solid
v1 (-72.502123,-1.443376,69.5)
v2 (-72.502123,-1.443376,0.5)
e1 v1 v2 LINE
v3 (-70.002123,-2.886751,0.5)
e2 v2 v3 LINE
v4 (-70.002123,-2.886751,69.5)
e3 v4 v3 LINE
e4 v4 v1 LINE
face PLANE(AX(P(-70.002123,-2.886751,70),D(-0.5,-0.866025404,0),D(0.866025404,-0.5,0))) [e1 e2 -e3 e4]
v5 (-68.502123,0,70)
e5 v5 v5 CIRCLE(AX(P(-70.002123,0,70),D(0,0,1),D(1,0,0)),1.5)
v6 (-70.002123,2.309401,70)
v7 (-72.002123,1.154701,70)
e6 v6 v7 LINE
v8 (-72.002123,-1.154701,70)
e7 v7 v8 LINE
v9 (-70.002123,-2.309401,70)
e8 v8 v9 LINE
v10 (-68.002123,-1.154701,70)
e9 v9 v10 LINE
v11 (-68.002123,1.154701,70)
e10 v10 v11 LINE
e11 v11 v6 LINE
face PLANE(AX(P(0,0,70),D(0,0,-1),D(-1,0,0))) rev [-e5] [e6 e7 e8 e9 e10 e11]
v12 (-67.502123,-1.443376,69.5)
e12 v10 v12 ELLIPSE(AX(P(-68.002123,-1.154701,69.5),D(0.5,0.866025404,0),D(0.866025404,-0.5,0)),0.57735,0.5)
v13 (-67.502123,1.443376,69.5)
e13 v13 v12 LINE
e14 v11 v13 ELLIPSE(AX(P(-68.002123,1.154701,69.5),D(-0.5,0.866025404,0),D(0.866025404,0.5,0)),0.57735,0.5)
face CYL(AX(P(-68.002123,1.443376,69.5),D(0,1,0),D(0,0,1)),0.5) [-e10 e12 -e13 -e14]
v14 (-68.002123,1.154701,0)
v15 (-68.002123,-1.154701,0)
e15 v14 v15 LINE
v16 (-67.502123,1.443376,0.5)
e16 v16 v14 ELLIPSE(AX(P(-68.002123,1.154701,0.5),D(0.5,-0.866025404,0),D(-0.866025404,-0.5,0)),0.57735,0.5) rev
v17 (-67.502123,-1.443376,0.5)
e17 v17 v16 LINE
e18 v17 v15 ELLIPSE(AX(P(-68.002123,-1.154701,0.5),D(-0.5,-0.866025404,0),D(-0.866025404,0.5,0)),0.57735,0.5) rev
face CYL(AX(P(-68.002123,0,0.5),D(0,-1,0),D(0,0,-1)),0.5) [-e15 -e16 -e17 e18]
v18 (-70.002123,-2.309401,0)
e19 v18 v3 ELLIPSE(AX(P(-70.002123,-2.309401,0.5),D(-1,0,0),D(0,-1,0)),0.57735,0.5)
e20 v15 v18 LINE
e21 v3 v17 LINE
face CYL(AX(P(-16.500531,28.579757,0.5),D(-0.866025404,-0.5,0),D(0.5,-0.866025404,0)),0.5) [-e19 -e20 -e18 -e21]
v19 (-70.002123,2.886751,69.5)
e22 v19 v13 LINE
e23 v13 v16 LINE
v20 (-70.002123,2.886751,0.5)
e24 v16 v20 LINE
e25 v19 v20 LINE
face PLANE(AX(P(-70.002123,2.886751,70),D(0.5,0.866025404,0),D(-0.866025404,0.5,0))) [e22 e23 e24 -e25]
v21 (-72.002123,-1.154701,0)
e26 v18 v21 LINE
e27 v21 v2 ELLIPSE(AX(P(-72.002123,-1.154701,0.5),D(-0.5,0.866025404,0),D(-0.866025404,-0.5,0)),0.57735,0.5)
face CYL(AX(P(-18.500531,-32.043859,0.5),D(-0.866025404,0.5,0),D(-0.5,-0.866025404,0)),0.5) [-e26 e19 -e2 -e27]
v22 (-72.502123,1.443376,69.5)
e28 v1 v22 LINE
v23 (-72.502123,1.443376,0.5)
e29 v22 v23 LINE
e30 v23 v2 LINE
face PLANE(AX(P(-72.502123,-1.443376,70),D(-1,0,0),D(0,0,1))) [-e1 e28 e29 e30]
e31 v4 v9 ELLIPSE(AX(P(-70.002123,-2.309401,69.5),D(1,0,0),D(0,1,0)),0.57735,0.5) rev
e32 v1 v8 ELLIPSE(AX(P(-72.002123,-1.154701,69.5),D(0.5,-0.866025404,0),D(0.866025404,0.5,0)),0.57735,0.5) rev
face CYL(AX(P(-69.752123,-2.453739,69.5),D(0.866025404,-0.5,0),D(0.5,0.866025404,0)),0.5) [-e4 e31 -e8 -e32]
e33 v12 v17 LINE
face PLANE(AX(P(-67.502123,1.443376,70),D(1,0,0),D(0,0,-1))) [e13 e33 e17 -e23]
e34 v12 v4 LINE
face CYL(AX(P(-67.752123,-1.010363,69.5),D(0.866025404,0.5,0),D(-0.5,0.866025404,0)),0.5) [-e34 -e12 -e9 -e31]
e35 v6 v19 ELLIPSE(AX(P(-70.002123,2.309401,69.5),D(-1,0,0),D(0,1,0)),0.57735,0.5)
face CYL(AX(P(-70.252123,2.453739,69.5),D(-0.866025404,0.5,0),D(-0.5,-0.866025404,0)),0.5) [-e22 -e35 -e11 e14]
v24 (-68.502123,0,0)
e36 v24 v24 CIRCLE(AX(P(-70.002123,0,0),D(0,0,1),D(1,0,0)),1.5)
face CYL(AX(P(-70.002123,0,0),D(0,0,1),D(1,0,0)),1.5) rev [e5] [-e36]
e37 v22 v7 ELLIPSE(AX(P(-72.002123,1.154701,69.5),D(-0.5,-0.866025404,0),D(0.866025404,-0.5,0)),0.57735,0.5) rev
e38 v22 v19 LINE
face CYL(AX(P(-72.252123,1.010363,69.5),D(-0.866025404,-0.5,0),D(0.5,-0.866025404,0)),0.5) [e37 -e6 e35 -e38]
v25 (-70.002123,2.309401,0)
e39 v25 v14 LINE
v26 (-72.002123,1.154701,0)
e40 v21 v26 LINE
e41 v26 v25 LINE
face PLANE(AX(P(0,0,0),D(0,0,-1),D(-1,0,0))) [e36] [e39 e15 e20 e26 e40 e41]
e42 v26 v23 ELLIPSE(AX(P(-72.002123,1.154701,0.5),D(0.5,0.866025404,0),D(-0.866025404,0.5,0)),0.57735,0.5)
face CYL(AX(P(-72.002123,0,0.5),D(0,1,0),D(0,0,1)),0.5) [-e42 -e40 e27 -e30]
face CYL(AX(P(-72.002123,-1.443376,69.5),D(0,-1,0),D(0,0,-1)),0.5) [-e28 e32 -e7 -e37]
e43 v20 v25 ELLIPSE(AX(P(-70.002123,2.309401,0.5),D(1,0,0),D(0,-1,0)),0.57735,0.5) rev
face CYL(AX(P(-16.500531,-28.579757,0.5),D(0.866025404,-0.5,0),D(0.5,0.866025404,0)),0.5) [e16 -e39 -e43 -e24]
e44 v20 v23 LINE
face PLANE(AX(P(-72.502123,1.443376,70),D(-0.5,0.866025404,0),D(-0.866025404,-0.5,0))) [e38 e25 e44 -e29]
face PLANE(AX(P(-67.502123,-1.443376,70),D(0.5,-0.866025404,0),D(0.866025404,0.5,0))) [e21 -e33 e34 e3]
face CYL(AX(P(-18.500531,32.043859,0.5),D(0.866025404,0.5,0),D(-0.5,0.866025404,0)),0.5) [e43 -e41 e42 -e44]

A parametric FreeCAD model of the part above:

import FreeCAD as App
import Part
import Sketcher
from FreeCAD import Vector
Q = App.Units.Quantity


def edges_at(feature, points):
    """Names of the edges that pass closest to the given points."""
    edges = feature.Shape.Edges
    near = lambda p: min(range(len(edges)), key=lambda i: edges[i].distToShape(Part.Vertex(*p))[0])
    return sorted({f"Edge{near(p) + 1}" for p in points})


def add_polygon(sketch, points):
    """Adds a closed chain of lines whose ends are joined by coincident constraints."""
    first, n = sketch.GeometryCount, len(points)
    for a, b in zip(points, points[1:] + points[:1]):
        sketch.addGeometry(Part.LineSegment(App.Vector(*a, 0), App.Vector(*b, 0)), False)
    for i in range(n):
        sketch.addConstraint(Sketcher.Constraint("Coincident", first + i, 2, first + (i + 1) % n, 1))

doc = App.newDocument("Part")
body = doc.addObject("PartDesign::Body", "Body")

sketch1 = body.newObject("Sketcher::SketchObject", "Sketch")
sketch1.AttachmentSupport = (doc.getObject("XY_Plane"), [""])
sketch1.MapMode = "FlatFace"
add_polygon(sketch1, [(-67.5, -1.4), (-70, -2.9), (-72.5, -1.4), (-72.5, 1.4), (-70, 2.9), (-67.5, 1.4)])
sketch1.addConstraint([
    Sketcher.Constraint("Vertical", 2),
    Sketcher.Constraint("Vertical", 5),
    Sketcher.Constraint("Symmetric", 0, 2, 3, 2, -1),
    Sketcher.Constraint("Parallel", 0, 3),
    Sketcher.Constraint("Parallel", 1, 4),
    Sketcher.Constraint("Horizontal", 2, 2, 4, 2),
    Sketcher.Constraint("Horizontal", 1, 2, 5, 2),
    Sketcher.Constraint("Angle", 0, Q("-150 deg")),
    Sketcher.Constraint("DistanceX", 2, 2, 4, 2, 5.0),
    Sketcher.Constraint("DistanceY", 2, 1, 2, 2, 2.886751),
    Sketcher.Constraint("DistanceX", 0, 2, -1, 1, 70.002123),
])
pad1 = body.newObject("PartDesign::Pad", "Pad")
pad1.Profile = sketch1
pad1.Length = 70
doc.recompute()

fillet = body.newObject("PartDesign::Fillet", "Fillet")
fillet.Base = (pad1, edges_at(pad1, [
    (-71.252, -2.165, 70),
    (-72.502, 0, 70),
    (-71.252, 2.165, 70),
    (-68.752, 2.165, 70),
    (-67.502, 0, 70),
    (-68.752, 2.165, 0),
    (-71.252, 2.165, 0),
    (-72.502, 0, 0),
    (-71.252, -2.165, 0),
    (-68.752, -2.165, 0),
    (-67.502, 0, 0),
    (-68.752, -2.165, 70),
]))
fillet.Radius = 0.5

sketch2 = body.newObject("Sketcher::SketchObject", "Sketch001")
sketch2.AttachmentSupport = (doc.getObject("XY_Plane"), [""])
sketch2.MapMode = "FlatFace"
sketch2.AttachmentOffset = App.Placement(Vector(0, 0, 70), App.Rotation())
sketch2.addGeometry(Part.Circle(Vector(-70, 0, 0), Vector(0, 0, 1), 1.5), False)
sketch2.addConstraint([
    Sketcher.Constraint("PointOnObject", 0, 3, -1),
    Sketcher.Constraint("Diameter", 0, 3.0),
    Sketcher.Constraint("DistanceX", 0, 3, -1, 1, 70.002123),
])
pocket1 = body.newObject("PartDesign::Pocket", "Pocket")
pocket1.Profile = sketch2
pocket1.Type = "ThroughAll"

doc.recompute()
